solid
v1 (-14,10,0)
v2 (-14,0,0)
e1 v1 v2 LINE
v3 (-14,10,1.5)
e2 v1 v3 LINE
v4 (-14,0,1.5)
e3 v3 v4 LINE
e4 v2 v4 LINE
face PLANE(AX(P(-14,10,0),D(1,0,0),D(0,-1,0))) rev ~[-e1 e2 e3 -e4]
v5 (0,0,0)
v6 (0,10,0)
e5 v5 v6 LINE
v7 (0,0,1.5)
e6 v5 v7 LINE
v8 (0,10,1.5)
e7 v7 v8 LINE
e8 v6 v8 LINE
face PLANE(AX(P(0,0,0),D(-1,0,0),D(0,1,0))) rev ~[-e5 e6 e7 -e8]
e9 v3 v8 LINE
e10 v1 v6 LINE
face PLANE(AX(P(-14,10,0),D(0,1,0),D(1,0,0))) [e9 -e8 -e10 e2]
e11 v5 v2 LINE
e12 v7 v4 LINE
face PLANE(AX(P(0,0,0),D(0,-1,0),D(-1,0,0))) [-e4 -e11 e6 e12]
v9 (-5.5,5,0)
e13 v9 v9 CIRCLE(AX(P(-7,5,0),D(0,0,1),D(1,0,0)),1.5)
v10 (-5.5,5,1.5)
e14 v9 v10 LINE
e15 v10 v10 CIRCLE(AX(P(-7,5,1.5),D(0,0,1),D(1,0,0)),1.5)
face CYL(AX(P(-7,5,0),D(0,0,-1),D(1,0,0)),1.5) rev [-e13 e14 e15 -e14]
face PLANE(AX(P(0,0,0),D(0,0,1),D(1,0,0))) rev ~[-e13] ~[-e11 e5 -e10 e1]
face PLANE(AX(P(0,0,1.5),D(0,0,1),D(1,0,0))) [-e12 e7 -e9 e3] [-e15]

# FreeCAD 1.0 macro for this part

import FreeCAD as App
import Part
import Sketcher


def add_polygon(sketch, points):
    """Adds a closed chain of lines whose ends are joined by coincident constraints."""
    first, n = sketch.GeometryCount, len(points)
    for a, b in zip(points, points[1:] + points[:1]):
        sketch.addGeometry(Part.LineSegment(App.Vector(*a, 0), App.Vector(*b, 0)), False)
    for i in range(n):
        sketch.addConstraint(Sketcher.Constraint("Coincident", first + i, 2, first + (i + 1) % n, 1))

doc = App.newDocument("Part")
body = doc.addObject("PartDesign::Body", "Body")

# Sketch on XY plane
sketch1 = body.newObject("Sketcher::SketchObject", "Sketch")
sketch1.AttachmentSupport = (doc.getObject("XY_Plane"), [""])
sketch1.MapMode = "FlatFace"
add_polygon(sketch1, [(-14, 10), (-14, 0), (0, 0), (0, 10)])  # lines 0-3
sketch1.addGeometry(Part.Circle(App.Vector(-7, 5, 0), App.Vector(0, 0, 1), 1.5), False)  # 4
sketch1.addConstraint(Sketcher.Constraint("Vertical", 0))
sketch1.addConstraint(Sketcher.Constraint("Horizontal", 1))
sketch1.addConstraint(Sketcher.Constraint("Vertical", 2))
sketch1.addConstraint(Sketcher.Constraint("Horizontal", 3))
sketch1.addConstraint(Sketcher.Constraint("Coincident", 1, 2, -1, 1))
sketch1.addConstraint(Sketcher.Constraint("Diameter", 4, 3.0))
sketch1.addConstraint(Sketcher.Constraint("DistanceX", 1, 1, 1, 2, 14.0))
sketch1.addConstraint(Sketcher.Constraint("DistanceY", 0, 2, 0, 1, 10.0))
sketch1.addConstraint(Sketcher.Constraint("DistanceX", 4, 3, -1, 1, 7.0))
sketch1.addConstraint(Sketcher.Constraint("DistanceY", -1, 1, 4, 3, 5.0))
pad1 = body.newObject("PartDesign::Pad", "Pad")
pad1.Profile = sketch1
pad1.Length = 1.5

doc.recompute()
